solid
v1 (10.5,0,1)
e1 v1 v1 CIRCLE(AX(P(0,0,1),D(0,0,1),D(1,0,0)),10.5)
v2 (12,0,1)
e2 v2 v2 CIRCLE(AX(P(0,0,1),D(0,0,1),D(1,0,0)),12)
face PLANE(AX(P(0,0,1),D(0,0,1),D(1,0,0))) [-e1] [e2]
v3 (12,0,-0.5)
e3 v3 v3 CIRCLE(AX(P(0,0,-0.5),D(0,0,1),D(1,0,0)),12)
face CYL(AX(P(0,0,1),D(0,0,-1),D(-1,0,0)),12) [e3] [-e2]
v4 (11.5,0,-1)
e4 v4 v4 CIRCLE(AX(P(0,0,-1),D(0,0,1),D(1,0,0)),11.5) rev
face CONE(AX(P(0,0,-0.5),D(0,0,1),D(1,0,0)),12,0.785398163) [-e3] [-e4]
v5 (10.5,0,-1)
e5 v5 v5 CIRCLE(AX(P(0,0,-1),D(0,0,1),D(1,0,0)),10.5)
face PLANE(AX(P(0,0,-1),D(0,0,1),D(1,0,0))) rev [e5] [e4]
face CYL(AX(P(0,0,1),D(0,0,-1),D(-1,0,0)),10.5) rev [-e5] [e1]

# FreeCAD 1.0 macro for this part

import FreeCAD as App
import Part
import Sketcher

V = App.Vector


def edges_at(feature, points):
    """Names of the edges that pass closest to the given points."""
    edges = feature.Shape.Edges
    near = lambda p: min(range(len(edges)), key=lambda i: edges[i].distToShape(Part.Vertex(*p))[0])
    return sorted({f"Edge{near(p) + 1}" for p in points})

doc = App.newDocument("Part")
body = doc.addObject("PartDesign::Body", "Body")

# Sketch on XY plane
sketch1 = body.newObject("Sketcher::SketchObject", "Sketch")
sketch1.AttachmentSupport = (doc.getObject("XY_Plane"), [""])
sketch1.MapMode = "FlatFace"
sketch1.addGeometry([
    Part.Circle(V(0, 0, 0), V(0, 0, 1), 12),
    Part.Circle(V(0, 0, 0), V(0, 0, 1), 10),
], False)
sketch1.addConstraint([
    Sketcher.Constraint("Coincident", 0, 3, -1, 1),
    Sketcher.Constraint("Coincident", 1, 3, -1, 1),
    Sketcher.Constraint("Diameter", 0, 24.0),
    Sketcher.Constraint("Diameter", 1, 21.0),
])
pad1 = body.newObject("PartDesign::Pad", "Pad")
pad1.Profile = sketch1
pad1.Length = 2
pad1.Midplane = True
doc.recompute()

chamfer = body.newObject("PartDesign::Chamfer", "Chamfer")
chamfer.Base = (pad1, edges_at(pad1, [(-12, 0, -1)]))
chamfer.Size = 0.5

doc.recompute()
